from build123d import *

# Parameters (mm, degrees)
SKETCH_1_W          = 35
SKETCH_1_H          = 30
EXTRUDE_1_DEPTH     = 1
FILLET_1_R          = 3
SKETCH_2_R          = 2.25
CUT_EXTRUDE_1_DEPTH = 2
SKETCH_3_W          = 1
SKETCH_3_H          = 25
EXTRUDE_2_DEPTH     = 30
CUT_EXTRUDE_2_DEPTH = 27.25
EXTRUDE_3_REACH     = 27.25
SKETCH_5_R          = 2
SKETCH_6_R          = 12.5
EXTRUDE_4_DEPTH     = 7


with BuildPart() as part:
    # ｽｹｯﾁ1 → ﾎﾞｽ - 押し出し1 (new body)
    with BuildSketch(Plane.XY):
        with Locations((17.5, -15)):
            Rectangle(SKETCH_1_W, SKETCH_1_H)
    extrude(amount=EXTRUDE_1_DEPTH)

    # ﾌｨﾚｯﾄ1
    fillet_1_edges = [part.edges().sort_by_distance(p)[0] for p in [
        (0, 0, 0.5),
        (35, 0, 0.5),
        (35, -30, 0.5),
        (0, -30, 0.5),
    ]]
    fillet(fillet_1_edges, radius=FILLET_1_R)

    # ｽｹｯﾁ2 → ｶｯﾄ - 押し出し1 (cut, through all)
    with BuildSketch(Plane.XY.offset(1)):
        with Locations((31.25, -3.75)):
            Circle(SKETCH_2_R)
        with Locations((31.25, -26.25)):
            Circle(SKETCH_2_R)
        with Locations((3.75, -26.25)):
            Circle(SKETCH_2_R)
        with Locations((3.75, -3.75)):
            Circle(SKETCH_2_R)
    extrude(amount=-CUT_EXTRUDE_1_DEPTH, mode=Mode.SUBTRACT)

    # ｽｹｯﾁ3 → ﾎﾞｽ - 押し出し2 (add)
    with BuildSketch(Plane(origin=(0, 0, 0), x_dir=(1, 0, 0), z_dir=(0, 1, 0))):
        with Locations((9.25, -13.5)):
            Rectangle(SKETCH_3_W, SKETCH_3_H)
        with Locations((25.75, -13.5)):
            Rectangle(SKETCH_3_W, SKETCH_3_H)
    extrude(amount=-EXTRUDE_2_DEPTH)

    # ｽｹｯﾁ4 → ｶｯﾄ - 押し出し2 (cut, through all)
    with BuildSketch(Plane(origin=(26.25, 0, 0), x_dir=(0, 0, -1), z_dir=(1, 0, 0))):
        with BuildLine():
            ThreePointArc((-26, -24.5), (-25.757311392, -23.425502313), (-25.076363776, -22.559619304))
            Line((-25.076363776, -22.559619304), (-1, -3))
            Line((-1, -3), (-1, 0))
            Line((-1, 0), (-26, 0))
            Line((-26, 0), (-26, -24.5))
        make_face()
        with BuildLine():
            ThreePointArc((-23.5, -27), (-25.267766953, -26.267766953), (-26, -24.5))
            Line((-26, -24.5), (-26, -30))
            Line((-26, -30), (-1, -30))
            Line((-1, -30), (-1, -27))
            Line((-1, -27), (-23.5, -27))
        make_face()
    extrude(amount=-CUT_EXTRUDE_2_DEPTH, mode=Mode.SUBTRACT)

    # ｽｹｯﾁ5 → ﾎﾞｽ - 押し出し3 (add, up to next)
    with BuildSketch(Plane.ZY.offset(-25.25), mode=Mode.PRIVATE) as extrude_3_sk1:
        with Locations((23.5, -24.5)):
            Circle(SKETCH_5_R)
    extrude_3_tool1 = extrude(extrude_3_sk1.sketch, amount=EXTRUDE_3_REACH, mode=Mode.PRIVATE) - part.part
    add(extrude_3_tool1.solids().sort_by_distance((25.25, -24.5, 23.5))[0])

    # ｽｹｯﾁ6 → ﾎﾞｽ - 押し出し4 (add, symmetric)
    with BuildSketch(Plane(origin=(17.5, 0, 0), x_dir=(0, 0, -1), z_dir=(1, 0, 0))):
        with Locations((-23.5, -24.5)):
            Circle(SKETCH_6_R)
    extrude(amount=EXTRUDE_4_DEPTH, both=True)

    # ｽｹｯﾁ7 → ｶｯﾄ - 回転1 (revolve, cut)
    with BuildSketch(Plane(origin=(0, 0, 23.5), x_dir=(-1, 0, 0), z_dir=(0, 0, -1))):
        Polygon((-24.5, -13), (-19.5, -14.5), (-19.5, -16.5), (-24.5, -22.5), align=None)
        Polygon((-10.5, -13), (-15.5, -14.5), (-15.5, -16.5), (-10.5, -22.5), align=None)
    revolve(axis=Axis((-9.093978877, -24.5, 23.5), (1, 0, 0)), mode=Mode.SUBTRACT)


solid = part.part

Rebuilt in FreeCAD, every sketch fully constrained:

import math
import FreeCAD as App
import Part
import Sketcher
from FreeCAD import Vector
Q = App.Units.Quantity


def edges_at(feature, points):
    """Names of the edges that pass closest to the given points."""
    edges = feature.Shape.Edges
    near = lambda p: min(range(len(edges)), key=lambda i: edges[i].distToShape(Part.Vertex(*p))[0])
    return sorted({f"Edge{near(p) + 1}" for p in points})


def add_polygon(sketch, points):
    """Adds a closed chain of lines whose ends are joined by coincident constraints."""
    first, n = sketch.GeometryCount, len(points)
    for a, b in zip(points, points[1:] + points[:1]):
        sketch.addGeometry(Part.LineSegment(App.Vector(*a, 0), App.Vector(*b, 0)), False)
    for i in range(n):
        sketch.addConstraint(Sketcher.Constraint("Coincident", first + i, 2, first + (i + 1) % n, 1))

doc = App.newDocument("Part")
body = doc.addObject("PartDesign::Body", "Body")

# Sketch on XY plane
sketch1 = doc.addObject("Sketcher::SketchObject", "Sketch")
body.addObject(sketch1)
sketch1.AttachmentSupport = (doc.XY_Plane, [""])
sketch1.MapMode = "FlatFace"
add_polygon(sketch1, [(0, 0), (0, -30), (35, -30), (35, 0)])  # lines 0-3
sketch1.addConstraint(Sketcher.Constraint("Vertical", 0))
sketch1.addConstraint(Sketcher.Constraint("Horizontal", 1))
sketch1.addConstraint(Sketcher.Constraint("Vertical", 2))
sketch1.addConstraint(Sketcher.Constraint("Horizontal", 3))
sketch1.addConstraint(Sketcher.Constraint("Coincident", 3, 2, -1, 1))
sketch1.addConstraint(Sketcher.Constraint("DistanceX", 1, 1, 1, 2, Q("35 mm")))
sketch1.addConstraint(Sketcher.Constraint("DistanceY", 0, 2, 0, 1, Q("30 mm")))
pad1 = doc.addObject("PartDesign::Pad", "Pad")
body.addObject(pad1)
pad1.Profile = sketch1
pad1.Length = 1
doc.recompute()

fillet = doc.addObject("PartDesign::Fillet", "Fillet")
body.addObject(fillet)
fillet.Base = (pad1, edges_at(pad1, [
    (0, 0, 0.5),
    (35, 0, 0.5),
    (35, -30, 0.5),
    (0, -30, 0.5),
]))
fillet.Radius = 3

# Sketch on XY plane
sketch2 = doc.addObject("Sketcher::SketchObject", "Sketch001")
body.addObject(sketch2)
sketch2.AttachmentSupport = (doc.XY_Plane, [""])
sketch2.MapMode = "FlatFace"
sketch2.AttachmentOffset = App.Placement(Vector(0, 0, 1), App.Rotation())
sketch2.addGeometry(Part.Circle(Vector(31.25, -3.75, 0), Vector(0, 0, 1), 2.25), False)
sketch2.addGeometry(Part.Circle(Vector(31.25, -26.25, 0), Vector(0, 0, 1), 2.25), False)
sketch2.addGeometry(Part.Circle(Vector(3.75, -26.25, 0), Vector(0, 0, 1), 2.25), False)
sketch2.addGeometry(Part.Circle(Vector(3.75, -3.75, 0), Vector(0, 0, 1), 2.25), False)
sketch2.addConstraint(Sketcher.Constraint("Equal", 0, 1))
sketch2.addConstraint(Sketcher.Constraint("Equal", 1, 2))
sketch2.addConstraint(Sketcher.Constraint("Equal", 2, 3))
sketch2.addConstraint(Sketcher.Constraint("Horizontal", 1, 3, 2, 3))
sketch2.addConstraint(Sketcher.Constraint("Horizontal", 0, 3, 3, 3))
sketch2.addConstraint(Sketcher.Constraint("Vertical", 0, 3, 1, 3))
sketch2.addConstraint(Sketcher.Constraint("Vertical", 2, 3, 3, 3))
sketch2.addConstraint(Sketcher.Constraint("Diameter", 0, Q("4.5 mm")))
sketch2.addConstraint(Sketcher.Constraint("DistanceY", 1, 3, 0, 3, Q("22.5 mm")))
sketch2.addConstraint(Sketcher.Constraint("DistanceX", 2, 3, 1, 3, Q("27.5 mm")))
sketch2.addConstraint(Sketcher.Constraint("DistanceX", -1, 1, 0, 3, Q("31.25 mm")))
sketch2.addConstraint(Sketcher.Constraint("DistanceY", 0, 3, -1, 1, Q("3.75 mm")))
pocket1 = doc.addObject("PartDesign::Pocket", "Pocket")
body.addObject(pocket1)
pocket1.Profile = sketch2
pocket1.Type = "ThroughAll"

# Sketch on XZ plane
sketch3 = doc.addObject("Sketcher::SketchObject", "Sketch002")
body.addObject(sketch3)
sketch3.AttachmentSupport = (doc.XZ_Plane, [""])
sketch3.MapMode = "FlatFace"
add_polygon(sketch3, [(8.75, 1), (8.75, 26), (9.75, 26), (9.75, 1)])  # lines 0-3
add_polygon(sketch3, [(25.25, 1), (25.25, 26), (26.25, 26), (26.25, 1)])  # lines 4-7
sketch3.addConstraint(Sketcher.Constraint("Vertical", 0))
sketch3.addConstraint(Sketcher.Constraint("Horizontal", 1))
sketch3.addConstraint(Sketcher.Constraint("Vertical", 2))
sketch3.addConstraint(Sketcher.Constraint("Horizontal", 3))
sketch3.addConstraint(Sketcher.Constraint("Vertical", 4))
sketch3.addConstraint(Sketcher.Constraint("Horizontal", 5))
sketch3.addConstraint(Sketcher.Constraint("Vertical", 6))
sketch3.addConstraint(Sketcher.Constraint("Horizontal", 7))
sketch3.addConstraint(Sketcher.Constraint("Horizontal", 1, 2, 4, 2))
sketch3.addConstraint(Sketcher.Constraint("Horizontal", 3, 2, 6, 2))
sketch3.addConstraint(Sketcher.Constraint("Equal", 3, 5))
sketch3.addConstraint(Sketcher.Constraint("DistanceX", 1, 1, 1, 2, Q("1 mm")))
sketch3.addConstraint(Sketcher.Constraint("DistanceY", 0, 1, 0, 2, Q("25 mm")))
sketch3.addConstraint(Sketcher.Constraint("DistanceY", -1, 1, 0, 2, Q("26 mm")))
sketch3.addConstraint(Sketcher.Constraint("DistanceX", 1, 2, 4, 2, Q("15.5 mm")))
sketch3.addConstraint(Sketcher.Constraint("DistanceX", -1, 1, 0, 2, Q("8.75 mm")))
pad2 = doc.addObject("PartDesign::Pad", "Pad001")
body.addObject(pad2)
pad2.Profile = sketch3
pad2.Length = 30

# Sketch on YZ plane
sketch4 = doc.addObject("Sketcher::SketchObject", "Sketch003")
body.addObject(sketch4)
sketch4.AttachmentSupport = (doc.YZ_Plane, [""])
sketch4.MapMode = "FlatFace"
sketch4.AttachmentOffset = App.Placement(Vector(0, 0, 26.25), App.Rotation())
sketch4.addGeometry(Part.ArcOfCircle(Part.Circle(Vector(-24.5, 23.5, 0), Vector(0, 0, 1), 2.5), math.radians(39.090381), math.radians(90)), False)
sketch4.addGeometry(Part.LineSegment(Vector(-22.559619, 25.076364, 0), Vector(-3, 1, 0)), False)
sketch4.addGeometry(Part.LineSegment(Vector(-3, 1, 0), Vector(0, 1, 0)), False)
sketch4.addGeometry(Part.LineSegment(Vector(0, 1, 0), Vector(0, 26, 0)), False)
sketch4.addGeometry(Part.LineSegment(Vector(0, 26, 0), Vector(-24.5, 26, 0)), False)
sketch4.addGeometry(Part.ArcOfCircle(Part.Circle(Vector(-24.5, 23.5, 0), Vector(0, 0, 1), 2.5), math.radians(90), math.radians(180)), False)
sketch4.addGeometry(Part.LineSegment(Vector(-24.5, 26, 0), Vector(-30, 26, 0)), False)
sketch4.addGeometry(Part.LineSegment(Vector(-30, 26, 0), Vector(-30, 1, 0)), False)
sketch4.addGeometry(Part.LineSegment(Vector(-30, 1, 0), Vector(-27, 1, 0)), False)
sketch4.addGeometry(Part.LineSegment(Vector(-27, 1, 0), Vector(-27, 23.5, 0)), False)
sketch4.addConstraint(Sketcher.Constraint("Tangent", 0, 1, 1, 1))
sketch4.addConstraint(Sketcher.Constraint("Coincident", 1, 2, 2, 1))
sketch4.addConstraint(Sketcher.Constraint("Coincident", 2, 2, 3, 1))
sketch4.addConstraint(Sketcher.Constraint("Coincident", 3, 2, 4, 1))
sketch4.addConstraint(Sketcher.Constraint("Tangent", 4, 2, 0, 2))
sketch4.addConstraint(Sketcher.Constraint("Tangent", 5, 1, 6, 1))
sketch4.addConstraint(Sketcher.Constraint("Coincident", 6, 2, 7, 1))
sketch4.addConstraint(Sketcher.Constraint("Coincident", 7, 2, 8, 1))
sketch4.addConstraint(Sketcher.Constraint("Coincident", 8, 2, 9, 1))
sketch4.addConstraint(Sketcher.Constraint("Tangent", 9, 2, 5, 2))
sketch4.addConstraint(Sketcher.Constraint("Horizontal", 2))
sketch4.addConstraint(Sketcher.Constraint("Vertical", 3))
sketch4.addConstraint(Sketcher.Constraint("Horizontal", 4))
sketch4.addConstraint(Sketcher.Constraint("Horizontal", 6))
sketch4.addConstraint(Sketcher.Constraint("Vertical", 7))
sketch4.addConstraint(Sketcher.Constraint("Horizontal", 8))
sketch4.addConstraint(Sketcher.Constraint("Vertical", 9))
sketch4.addConstraint(Sketcher.Constraint("Coincident", 5, 3, 0, 3))
sketch4.addConstraint(Sketcher.Constraint("Equal", 0, 5))
sketch4.addConstraint(Sketcher.Constraint("PointOnObject", 2, 2, -2))
sketch4.addConstraint(Sketcher.Constraint("Horizontal", 2, 2, 7, 2))
sketch4.addConstraint(Sketcher.Constraint("Equal", 2, 8))
sketch4.addConstraint(Sketcher.Constraint("Radius", 0, Q("2.5 mm")))
sketch4.addConstraint(Sketcher.Constraint("DistanceX", 2, 1, 2, 2, Q("3 mm")))
sketch4.addConstraint(Sketcher.Constraint("DistanceY", 3, 1, 3, 2, Q("25 mm")))
sketch4.addConstraint(Sketcher.Constraint("DistanceX", 4, 2, 4, 1, Q("24.5 mm")))
sketch4.addConstraint(Sketcher.Constraint("DistanceY", -1, 1, 1, 2, Q("1 mm")))
pocket2 = doc.addObject("PartDesign::Pocket", "Pocket001")
body.addObject(pocket2)
pocket2.Profile = sketch4
pocket2.Type = "ThroughAll"

# Sketch on YZ plane
sketch5 = doc.addObject("Sketcher::SketchObject", "Sketch004")
body.addObject(sketch5)
sketch5.AttachmentSupport = (doc.YZ_Plane, [""])
sketch5.MapMode = "FlatFace"
sketch5.AttachmentOffset = App.Placement(Vector(0, 0, 25.25), App.Rotation())
sketch5.addGeometry(Part.Circle(Vector(-24.5, 23.5, 0), Vector(0, 0, 1), 2), False)
sketch5.addConstraint(Sketcher.Constraint("Diameter", 0, Q("4 mm")))
sketch5.addConstraint(Sketcher.Constraint("DistanceX", 0, 3, -1, 1, Q("24.5 mm")))
sketch5.addConstraint(Sketcher.Constraint("DistanceY", -1, 1, 0, 3, Q("23.5 mm")))
pad3 = doc.addObject("PartDesign::Pad", "Pad002")
body.addObject(pad3)
pad3.Profile = sketch5
pad3.Type = "UpToFirst"
pad3.Reversed = True

# Sketch on YZ plane
sketch6 = doc.addObject("Sketcher::SketchObject", "Sketch005")
body.addObject(sketch6)
sketch6.AttachmentSupport = (doc.YZ_Plane, [""])
sketch6.MapMode = "FlatFace"
sketch6.AttachmentOffset = App.Placement(Vector(0, 0, 17.5), App.Rotation())
sketch6.addGeometry(Part.Circle(Vector(-24.5, 23.5, 0), Vector(0, 0, 1), 12.5), False)
sketch6.addConstraint(Sketcher.Constraint("Diameter", 0, Q("25 mm")))
sketch6.addConstraint(Sketcher.Constraint("DistanceX", 0, 3, -1, 1, Q("24.5 mm")))
sketch6.addConstraint(Sketcher.Constraint("DistanceY", -1, 1, 0, 3, Q("23.5 mm")))
pad4 = doc.addObject("PartDesign::Pad", "Pad003")
body.addObject(pad4)
pad4.Profile = sketch6
pad4.Length = 14
pad4.Midplane = True

# Sketch on XY plane
sketch7 = doc.addObject("Sketcher::SketchObject", "Sketch006")
body.addObject(sketch7)
sketch7.AttachmentSupport = (doc.XY_Plane, [""])
sketch7.MapMode = "FlatFace"
sketch7.AttachmentOffset = App.Placement(Vector(0, 0, 23.5), App.Rotation())
add_polygon(sketch7, [(19.5, -14.5), (24.5, -13), (24.5, -22.5), (19.5, -16.5)])  # lines 0-3
add_polygon(sketch7, [(10.5, -13), (15.5, -14.5), (15.5, -16.5), (10.5, -22.5)])  # lines 4-7
sketch7.addGeometry(Part.LineSegment(Vector(10.5, -24.5, 0), Vector(24.5, -24.5, 0)), True)  # axis
sketch7.addConstraint(Sketcher.Constraint("Vertical", 1))
sketch7.addConstraint(Sketcher.Constraint("Vertical", 3))
sketch7.addConstraint(Sketcher.Constraint("Vertical", 5))
sketch7.addConstraint(Sketcher.Constraint("Vertical", 7))
sketch7.addConstraint(Sketcher.Constraint("Horizontal", 8))
sketch7.addConstraint(Sketcher.Constraint("Horizontal", 3, 2, 4, 2))
sketch7.addConstraint(Sketcher.Constraint("Horizontal", 2, 2, 5, 2))
sketch7.addConstraint(Sketcher.Constraint("Horizontal", 1, 2, 6, 2))
sketch7.addConstraint(Sketcher.Constraint("Horizontal", 0, 2, 7, 2))
sketch7.addConstraint(Sketcher.Constraint("Vertical", 7, 2, 8, 1))
sketch7.addConstraint(Sketcher.Constraint("Vertical", 1, 2, 8, 2))
sketch7.addConstraint(Sketcher.Constraint("Equal", 0, 4))
sketch7.addConstraint(Sketcher.Constraint("DistanceX", 8, 1, 8, 2, Q("14 mm")))
sketch7.addConstraint(Sketcher.Constraint("DistanceY", 3, 1, 3, 2, Q("2 mm")))
sketch7.addConstraint(Sketcher.Constraint("DistanceY", 1, 2, 1, 1, Q("9.5 mm")))
sketch7.addConstraint(Sketcher.Constraint("DistanceY", 0, 2, -1, 1, Q("13 mm")))
sketch7.addConstraint(Sketcher.Constraint("DistanceX", 2, 2, 0, 2, Q("5 mm")))
sketch7.addConstraint(Sketcher.Constraint("DistanceY", 1, 2, 2, 2, Q("6 mm")))
sketch7.addConstraint(Sketcher.Constraint("DistanceY", 8, 1, 6, 2, Q("2 mm")))
sketch7.addConstraint(Sketcher.Constraint("DistanceX", -1, 1, 0, 2, Q("24.5 mm")))
groove = doc.addObject("PartDesign::Groove", "Groove")
body.addObject(groove)
groove.Profile = sketch7
groove.ReferenceAxis = (sketch7, ["Axis0"])
groove.Angle = 360

doc.recompute()
